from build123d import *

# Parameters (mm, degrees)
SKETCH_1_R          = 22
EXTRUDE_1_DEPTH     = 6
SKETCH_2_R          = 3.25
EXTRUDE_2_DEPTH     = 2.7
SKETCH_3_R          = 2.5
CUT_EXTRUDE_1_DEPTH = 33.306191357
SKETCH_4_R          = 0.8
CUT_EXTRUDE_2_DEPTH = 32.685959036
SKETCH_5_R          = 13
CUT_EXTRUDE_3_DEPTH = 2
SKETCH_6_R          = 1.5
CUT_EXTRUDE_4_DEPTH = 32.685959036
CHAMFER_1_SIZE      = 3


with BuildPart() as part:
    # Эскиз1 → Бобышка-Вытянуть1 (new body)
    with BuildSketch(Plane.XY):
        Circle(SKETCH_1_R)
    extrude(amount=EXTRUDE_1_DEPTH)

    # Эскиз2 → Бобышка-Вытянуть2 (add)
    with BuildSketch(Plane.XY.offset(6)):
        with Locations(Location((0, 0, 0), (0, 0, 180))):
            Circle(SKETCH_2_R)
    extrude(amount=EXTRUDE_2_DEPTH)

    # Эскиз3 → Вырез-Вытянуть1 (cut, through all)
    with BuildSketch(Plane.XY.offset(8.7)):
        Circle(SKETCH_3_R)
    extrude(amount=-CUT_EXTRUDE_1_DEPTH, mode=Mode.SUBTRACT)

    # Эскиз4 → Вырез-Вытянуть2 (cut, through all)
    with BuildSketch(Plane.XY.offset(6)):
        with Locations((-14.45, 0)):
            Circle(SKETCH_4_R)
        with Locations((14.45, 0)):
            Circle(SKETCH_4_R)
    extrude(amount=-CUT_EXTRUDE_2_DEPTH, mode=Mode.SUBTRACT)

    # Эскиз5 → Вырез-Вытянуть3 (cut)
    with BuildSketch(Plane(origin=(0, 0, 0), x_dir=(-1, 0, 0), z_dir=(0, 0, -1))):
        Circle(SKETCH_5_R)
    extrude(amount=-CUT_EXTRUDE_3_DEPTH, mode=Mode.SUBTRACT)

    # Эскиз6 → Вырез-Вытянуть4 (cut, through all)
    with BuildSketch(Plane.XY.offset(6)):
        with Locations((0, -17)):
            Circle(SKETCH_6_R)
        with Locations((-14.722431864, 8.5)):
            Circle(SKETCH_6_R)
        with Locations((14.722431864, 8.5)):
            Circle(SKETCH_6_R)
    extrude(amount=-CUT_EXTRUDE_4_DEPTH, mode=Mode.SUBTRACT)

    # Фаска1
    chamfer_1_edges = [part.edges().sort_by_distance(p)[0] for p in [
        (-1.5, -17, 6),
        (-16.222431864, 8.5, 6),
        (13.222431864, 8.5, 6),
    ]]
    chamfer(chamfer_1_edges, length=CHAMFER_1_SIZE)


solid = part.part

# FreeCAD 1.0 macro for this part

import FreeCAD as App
import Part
import Sketcher
Q = App.Units.Quantity


def edges_at(feature, points):
    """Names of the edges that pass closest to the given points."""
    edges = feature.Shape.Edges
    near = lambda p: min(range(len(edges)), key=lambda i: edges[i].distToShape(Part.Vertex(*p))[0])
    return sorted({f"Edge{near(p) + 1}" for p in points})

doc = App.newDocument("Part")
params = doc.addObject("Spreadsheet::Sheet", "Params")
for row, (alias, value) in enumerate([
    ("sketch1_diameter", "44 mm"),
    ("pad1_length", "6 mm"),
    ("sketch2_diameter", "6.5 mm"),
    ("pad2_length", "2.7 mm"),
    ("sketch3_diameter", "5 mm"),
    ("sketch4_diameter", "1.6 mm"),
    ("sketch5_diameter", "26 mm"),
    ("pocket3_length", "2 mm"),
    ("sketch6_diameter", "3 mm"),
    ("chamfer_size", "3 mm"),
], start=1):
    params.set(f"A{row}", alias)
    params.set(f"B{row}", "=" + value)
    params.setAlias(f"B{row}", alias)

body = doc.addObject("PartDesign::Body", "Body")

# Sketch on XY plane
sketch1 = body.newObject("Sketcher::SketchObject", "Sketch")
sketch1.AttachmentSupport = (doc.getObject("XY_Plane"), [""])
sketch1.MapMode = "FlatFace"
sketch1.addGeometry(Part.Circle(App.Vector(0, 0, 0), App.Vector(0, 0, 1), 22), False)
sketch1.addConstraint([
    Sketcher.Constraint("Coincident", 0, 3, -1, 1),
    Sketcher.Constraint("Diameter", 0, Q("44 mm")),
])
sketch1.setExpression("Constraints[1]", "Params.sketch1_diameter")
pad1 = body.newObject("PartDesign::Pad", "Pad")
pad1.Profile = sketch1
pad1.setExpression("Length", "Params.pad1_length")

# Sketch on XY plane
sketch2 = body.newObject("Sketcher::SketchObject", "Sketch001")
sketch2.AttachmentSupport = (doc.getObject("XY_Plane"), [""])
sketch2.MapMode = "FlatFace"
sketch2.AttachmentOffset = App.Placement(App.Vector(0, 0, 6), App.Rotation())
sketch2.addGeometry(Part.Circle(App.Vector(0, 0, 0), App.Vector(0, 0, 1), 3.2), False)
sketch2.addConstraint([
    Sketcher.Constraint("Coincident", 0, 3, -1, 1),
    Sketcher.Constraint("Diameter", 0, Q("6.5 mm")),
])
sketch2.setExpression("Constraints[1]", "Params.sketch2_diameter")
pad2 = body.newObject("PartDesign::Pad", "Pad001")
pad2.Profile = sketch2
pad2.setExpression("Length", "Params.pad2_length")

# Sketch on XY plane
sketch3 = body.newObject("Sketcher::SketchObject", "Sketch002")
sketch3.AttachmentSupport = (doc.getObject("XY_Plane"), [""])
sketch3.MapMode = "FlatFace"
sketch3.AttachmentOffset = App.Placement(App.Vector(0, 0, 8.7), App.Rotation())
sketch3.addGeometry(Part.Circle(App.Vector(0, 0, 0), App.Vector(0, 0, 1), 2.5), False)
sketch3.addConstraint([
    Sketcher.Constraint("Coincident", 0, 3, -1, 1),
    Sketcher.Constraint("Diameter", 0, Q("5 mm")),
])
sketch3.setExpression("Constraints[1]", "Params.sketch3_diameter")
pocket1 = body.newObject("PartDesign::Pocket", "Pocket")
pocket1.Profile = sketch3
pocket1.Type = "ThroughAll"

# Sketch on XY plane
sketch4 = body.newObject("Sketcher::SketchObject", "Sketch003")
sketch4.AttachmentSupport = (doc.getObject("XY_Plane"), [""])
sketch4.MapMode = "FlatFace"
sketch4.AttachmentOffset = App.Placement(App.Vector(0, 0, 6), App.Rotation())
sketch4.addGeometry([
    Part.Circle(App.Vector(-14.4, 0, 0), App.Vector(0, 0, 1), 0.8),
    Part.Circle(App.Vector(14.4, 0, 0), App.Vector(0, 0, 1), 0.8),
], False)
sketch4.addConstraint([
    Sketcher.Constraint("Equal", 0, 1),
    Sketcher.Constraint("Symmetric", 0, 3, 1, 3, -1, 1),
    Sketcher.Constraint("PointOnObject", 0, 3, -1),
    Sketcher.Constraint("Diameter", 0, Q("1.6 mm")),
    Sketcher.Constraint("DistanceX", 0, 3, 1, 3, Q("28.9 mm")),
])
sketch4.setExpression("Constraints[3]", "Params.sketch4_diameter")
pocket2 = body.newObject("PartDesign::Pocket", "Pocket001")
pocket2.Profile = sketch4
pocket2.Type = "ThroughAll"

# Sketch on XY plane
sketch5 = body.newObject("Sketcher::SketchObject", "Sketch004")
sketch5.AttachmentSupport = (doc.getObject("XY_Plane"), [""])
sketch5.MapMode = "FlatFace"
sketch5.addGeometry(Part.Circle(App.Vector(0, 0, 0), App.Vector(0, 0, 1), 13), False)
sketch5.addConstraint([
    Sketcher.Constraint("Coincident", 0, 3, -1, 1),
    Sketcher.Constraint("Diameter", 0, Q("26 mm")),
])
sketch5.setExpression("Constraints[1]", "Params.sketch5_diameter")
pocket3 = body.newObject("PartDesign::Pocket", "Pocket002")
pocket3.Profile = sketch5
pocket3.setExpression("Length", "Params.pocket3_length")
pocket3.Reversed = True

# Sketch on XY plane
sketch6 = body.newObject("Sketcher::SketchObject", "Sketch005")
sketch6.AttachmentSupport = (doc.getObject("XY_Plane"), [""])
sketch6.MapMode = "FlatFace"
sketch6.AttachmentOffset = App.Placement(App.Vector(0, 0, 6), App.Rotation())
sketch6.addGeometry([
    Part.Circle(App.Vector(0, -17, 0), App.Vector(0, 0, 1), 1.5),
    Part.Circle(App.Vector(-14.7, 8.5, 0), App.Vector(0, 0, 1), 1.5),
    Part.Circle(App.Vector(14.7, 8.5, 0), App.Vector(0, 0, 1), 1.5),
], False)
sketch6.addConstraint([
    Sketcher.Constraint("Equal", 0, 1),
    Sketcher.Constraint("Equal", 1, 2),
    Sketcher.Constraint("Symmetric", 1, 3, 2, 3, -2),
    Sketcher.Constraint("PointOnObject", 0, 3, -2),
    Sketcher.Constraint("Diameter", 0, Q("3 mm")),
    Sketcher.Constraint("DistanceY", 0, 3, -1, 1, Q("17 mm")),
    Sketcher.Constraint("DistanceY", -1, 1, 1, 3, Q("8.5 mm")),
    Sketcher.Constraint("DistanceX", 1, 3, -1, 1, Q("14.722432 mm")),
])
sketch6.setExpression("Constraints[4]", "Params.sketch6_diameter")
pocket4 = body.newObject("PartDesign::Pocket", "Pocket003")
pocket4.Profile = sketch6
pocket4.Type = "ThroughAll"
doc.recompute()

chamfer = body.newObject("PartDesign::Chamfer", "Chamfer")
chamfer.Base = (pocket4, edges_at(pocket4, [(-1.5, -17, 6), (-16.222, 8.5, 6), (13.222, 8.5, 6)]))
chamfer.setExpression("Size", "Params.chamfer_size")

doc.recompute()
